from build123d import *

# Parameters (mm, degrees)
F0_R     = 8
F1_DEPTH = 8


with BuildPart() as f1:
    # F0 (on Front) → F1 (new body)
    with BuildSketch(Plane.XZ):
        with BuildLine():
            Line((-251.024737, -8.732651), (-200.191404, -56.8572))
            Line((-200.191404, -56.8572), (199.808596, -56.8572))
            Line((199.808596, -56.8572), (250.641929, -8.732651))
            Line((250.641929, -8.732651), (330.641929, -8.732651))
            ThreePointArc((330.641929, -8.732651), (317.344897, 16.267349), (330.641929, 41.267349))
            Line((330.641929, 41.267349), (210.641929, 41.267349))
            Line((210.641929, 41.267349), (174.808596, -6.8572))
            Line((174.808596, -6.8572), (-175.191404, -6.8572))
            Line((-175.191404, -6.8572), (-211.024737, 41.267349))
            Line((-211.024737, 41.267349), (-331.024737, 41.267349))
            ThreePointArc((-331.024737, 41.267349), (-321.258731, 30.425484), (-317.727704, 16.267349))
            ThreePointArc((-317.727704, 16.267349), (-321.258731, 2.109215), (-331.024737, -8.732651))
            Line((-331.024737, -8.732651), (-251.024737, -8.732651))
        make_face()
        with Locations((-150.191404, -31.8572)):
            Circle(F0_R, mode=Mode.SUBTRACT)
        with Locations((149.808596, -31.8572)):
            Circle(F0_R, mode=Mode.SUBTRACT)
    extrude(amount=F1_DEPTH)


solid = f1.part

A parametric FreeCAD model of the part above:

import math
import FreeCAD as App
import Part
import Sketcher

V = App.Vector
Q = App.Units.Quantity

doc = App.newDocument("Part")
body = doc.addObject("PartDesign::Body", "Body")

# Sketch on XZ plane
sketch1 = body.newObject("Sketcher::SketchObject", "Sketch")
sketch1.AttachmentSupport = (doc.getObject("XZ_Plane"), [""])
sketch1.MapMode = "FlatFace"
sketch1.addGeometry([
    Part.LineSegment(V(-251, -9, 0), V(-200, -57, 0)),  # 0
    Part.LineSegment(V(-200, -57, 0), V(200, -57, 0)),  # 1
    Part.LineSegment(V(200, -57, 0), V(251, -9, 0)),  # 2
    Part.LineSegment(V(251, -9, 0), V(331, -9, 0)),  # 3
    Part.ArcOfCircle(Part.Circle(V(347, 16, 0), V(0, 0, 1), 30), math.radians(124), math.radians(236)),  # 4
    Part.LineSegment(V(331, 41, 0), V(211, 41, 0)),  # 5
    Part.LineSegment(V(211, 41, 0), V(175, -7, 0)),  # 6
    Part.LineSegment(V(175, -7, 0), V(-175, -7, 0)),  # 7
    Part.LineSegment(V(-175, -7, 0), V(-211, 41, 0)),  # 8
    Part.LineSegment(V(-211, 41, 0), V(-331, 41, 0)),  # 9
    Part.ArcOfCircle(Part.Circle(V(-348, 16, 0), V(0, 0, 1), 30), math.radians(0), math.radians(56)),  # 10
    Part.ArcOfCircle(Part.Circle(V(-348, 16, 0), V(0, 0, 1), 30), math.radians(-56), math.radians(0)),  # 11
    Part.LineSegment(V(-331, -9, 0), V(-251, -9, 0)),  # 12
    Part.Circle(V(-150, -32, 0), V(0, 0, 1), 8),  # 13
    Part.Circle(V(150, -32, 0), V(0, 0, 1), 8),  # 14
], False)
sketch1.addConstraint([
    Sketcher.Constraint("Coincident", 0, 2, 1, 1),
    Sketcher.Constraint("Coincident", 1, 2, 2, 1),
    Sketcher.Constraint("Coincident", 2, 2, 3, 1),
    Sketcher.Constraint("Coincident", 3, 2, 4, 2),
    Sketcher.Constraint("Coincident", 4, 1, 5, 1),
    Sketcher.Constraint("Coincident", 5, 2, 6, 1),
    Sketcher.Constraint("Coincident", 6, 2, 7, 1),
    Sketcher.Constraint("Coincident", 7, 2, 8, 1),
    Sketcher.Constraint("Coincident", 8, 2, 9, 1),
    Sketcher.Constraint("Coincident", 9, 2, 10, 2),
    Sketcher.Constraint("Tangent", 10, 1, 11, 2),
    Sketcher.Constraint("Coincident", 11, 1, 12, 1),
    Sketcher.Constraint("Coincident", 12, 2, 0, 1),
    Sketcher.Constraint("Horizontal", 1),
    Sketcher.Constraint("Horizontal", 3),
    Sketcher.Constraint("Horizontal", 5),
    Sketcher.Constraint("Horizontal", 7),
    Sketcher.Constraint("Horizontal", 9),
    Sketcher.Constraint("Horizontal", 12),
    Sketcher.Constraint("Equal", 4, 11),
    Sketcher.Constraint("Equal", 13, 14),
    Sketcher.Constraint("Horizontal", 4, 3, 10, 3),
    Sketcher.Constraint("Horizontal", 13, 3, 14, 3),
    Sketcher.Constraint("Horizontal", 5, 2, 8, 2),
    Sketcher.Constraint("Horizontal", 11, 3, 10, 1),
    Sketcher.Constraint("Horizontal", 3, 2, 11, 1),
    Sketcher.Constraint("Vertical", 3, 2, 4, 1),
    Sketcher.Constraint("Vertical", 9, 2, 11, 1),
    Sketcher.Constraint("Equal", 5, 9),
    Sketcher.Constraint("Equal", 3, 12),
    Sketcher.Constraint("Equal", 0, 2),
    Sketcher.Constraint("Equal", 6, 8),
    Sketcher.Constraint("Diameter", 13, Q("16 mm")),
    Sketcher.Constraint("DistanceX", 1, 1, 1, 2, Q("400 mm")),
    Sketcher.Constraint("DistanceX", 3, 1, 3, 2, Q("80 mm")),
    Sketcher.Constraint("DistanceX", 5, 2, 5, 1, Q("120 mm")),
    Sketcher.Constraint("DistanceX", 7, 2, 7, 1, Q("350 mm")),
    Sketcher.Constraint("Radius", 4, Q("30.150001 mm")),
    Sketcher.Constraint("Distance", 0, Q("70 mm")),
    Sketcher.Constraint("Distance", 6, Q("60 mm")),
    Sketcher.Constraint("DistanceX", 13, 3, 14, 3, Q("300 mm")),
    Sketcher.Constraint("DistanceX", 0, 2, 13, 3, Q("50 mm")),
    Sketcher.Constraint("DistanceY", 0, 2, 13, 3, Q("25 mm")),
    Sketcher.Constraint("DistanceY", 2, 2, 4, 3, Q("25 mm")),
    Sketcher.Constraint("DistanceY", 14, 3, 6, 2, Q("25 mm")),
    Sketcher.Constraint("DistanceX", -1, 1, 4, 3, Q("347.494898 mm")),
    Sketcher.Constraint("DistanceY", 13, 3, -1, 1, Q("31.8572 mm")),
])
pad1 = body.newObject("PartDesign::Pad", "Pad")
pad1.Profile = sketch1
pad1.Length = 8

doc.recompute()
